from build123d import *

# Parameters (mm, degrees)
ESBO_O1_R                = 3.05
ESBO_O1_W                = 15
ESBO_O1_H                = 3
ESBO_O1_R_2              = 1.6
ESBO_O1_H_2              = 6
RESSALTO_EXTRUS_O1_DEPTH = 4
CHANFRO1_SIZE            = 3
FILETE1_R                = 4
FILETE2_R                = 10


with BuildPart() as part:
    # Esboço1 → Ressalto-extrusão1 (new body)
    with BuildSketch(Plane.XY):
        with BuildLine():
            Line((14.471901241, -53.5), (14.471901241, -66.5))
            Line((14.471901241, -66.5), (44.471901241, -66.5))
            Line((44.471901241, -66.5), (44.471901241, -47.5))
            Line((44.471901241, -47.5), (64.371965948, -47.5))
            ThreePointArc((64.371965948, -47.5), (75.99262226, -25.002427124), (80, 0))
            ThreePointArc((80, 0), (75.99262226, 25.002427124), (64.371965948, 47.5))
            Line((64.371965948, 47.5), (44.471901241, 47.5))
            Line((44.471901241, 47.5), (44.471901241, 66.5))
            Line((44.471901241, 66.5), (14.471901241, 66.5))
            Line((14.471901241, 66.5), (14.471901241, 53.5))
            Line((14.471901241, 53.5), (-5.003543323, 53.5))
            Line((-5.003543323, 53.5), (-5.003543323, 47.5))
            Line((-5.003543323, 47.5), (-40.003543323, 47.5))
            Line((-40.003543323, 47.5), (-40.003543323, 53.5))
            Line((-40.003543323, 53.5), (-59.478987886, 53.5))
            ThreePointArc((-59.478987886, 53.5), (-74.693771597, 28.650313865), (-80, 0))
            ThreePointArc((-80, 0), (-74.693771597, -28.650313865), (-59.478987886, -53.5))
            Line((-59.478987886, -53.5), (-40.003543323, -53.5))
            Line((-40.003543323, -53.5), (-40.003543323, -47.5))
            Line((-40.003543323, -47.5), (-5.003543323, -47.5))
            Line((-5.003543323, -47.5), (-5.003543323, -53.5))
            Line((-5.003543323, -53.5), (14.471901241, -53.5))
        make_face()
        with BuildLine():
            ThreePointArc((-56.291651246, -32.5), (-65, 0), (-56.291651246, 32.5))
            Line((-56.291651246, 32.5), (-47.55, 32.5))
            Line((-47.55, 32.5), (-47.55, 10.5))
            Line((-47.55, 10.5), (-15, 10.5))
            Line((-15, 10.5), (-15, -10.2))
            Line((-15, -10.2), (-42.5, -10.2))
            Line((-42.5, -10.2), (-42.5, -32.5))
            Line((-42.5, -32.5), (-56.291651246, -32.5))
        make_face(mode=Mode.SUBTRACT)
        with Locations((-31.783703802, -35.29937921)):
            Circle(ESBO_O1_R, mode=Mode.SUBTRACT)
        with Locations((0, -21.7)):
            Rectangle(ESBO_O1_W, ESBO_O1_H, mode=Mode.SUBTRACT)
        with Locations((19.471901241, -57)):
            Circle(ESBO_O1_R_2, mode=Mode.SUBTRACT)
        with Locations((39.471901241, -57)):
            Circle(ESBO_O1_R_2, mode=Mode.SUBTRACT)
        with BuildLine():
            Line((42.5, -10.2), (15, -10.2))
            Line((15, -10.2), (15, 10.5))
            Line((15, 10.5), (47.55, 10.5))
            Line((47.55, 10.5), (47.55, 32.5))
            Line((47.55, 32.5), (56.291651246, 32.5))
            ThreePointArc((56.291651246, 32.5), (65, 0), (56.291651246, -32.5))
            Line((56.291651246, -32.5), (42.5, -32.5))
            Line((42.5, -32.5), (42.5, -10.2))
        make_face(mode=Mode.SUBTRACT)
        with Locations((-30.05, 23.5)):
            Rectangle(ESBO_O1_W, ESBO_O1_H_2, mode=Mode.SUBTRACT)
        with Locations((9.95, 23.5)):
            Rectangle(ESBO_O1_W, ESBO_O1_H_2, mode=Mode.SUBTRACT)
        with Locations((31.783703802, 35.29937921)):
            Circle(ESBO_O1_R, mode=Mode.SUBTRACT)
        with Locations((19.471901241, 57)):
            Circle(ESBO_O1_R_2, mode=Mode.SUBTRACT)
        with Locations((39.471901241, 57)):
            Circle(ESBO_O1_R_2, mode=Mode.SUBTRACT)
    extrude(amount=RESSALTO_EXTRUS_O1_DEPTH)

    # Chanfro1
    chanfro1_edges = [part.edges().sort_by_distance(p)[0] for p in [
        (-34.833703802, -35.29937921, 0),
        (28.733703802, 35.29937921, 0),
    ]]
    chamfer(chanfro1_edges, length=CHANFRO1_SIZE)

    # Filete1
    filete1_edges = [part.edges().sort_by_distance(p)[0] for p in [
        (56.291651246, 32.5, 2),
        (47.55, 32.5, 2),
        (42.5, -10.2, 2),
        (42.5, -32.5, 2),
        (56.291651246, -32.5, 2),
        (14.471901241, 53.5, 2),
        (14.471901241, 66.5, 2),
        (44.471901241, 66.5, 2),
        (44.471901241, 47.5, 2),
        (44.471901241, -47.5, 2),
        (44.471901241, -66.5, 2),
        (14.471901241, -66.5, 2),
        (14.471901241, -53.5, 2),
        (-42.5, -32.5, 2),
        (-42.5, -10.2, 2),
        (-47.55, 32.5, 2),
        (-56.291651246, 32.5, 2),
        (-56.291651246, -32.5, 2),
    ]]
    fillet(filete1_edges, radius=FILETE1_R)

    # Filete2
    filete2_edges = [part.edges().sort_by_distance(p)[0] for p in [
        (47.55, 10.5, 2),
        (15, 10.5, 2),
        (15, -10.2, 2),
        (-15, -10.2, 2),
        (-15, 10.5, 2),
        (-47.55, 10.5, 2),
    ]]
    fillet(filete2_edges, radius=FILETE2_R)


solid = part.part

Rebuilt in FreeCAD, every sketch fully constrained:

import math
import FreeCAD as App
import Part
import Sketcher

V = App.Vector


def edges_at(feature, points):
    """Names of the edges that pass closest to the given points."""
    edges = feature.Shape.Edges
    near = lambda p: min(range(len(edges)), key=lambda i: edges[i].distToShape(Part.Vertex(*p))[0])
    return sorted({f"Edge{near(p) + 1}" for p in points})

doc = App.newDocument("Part")
body = doc.addObject("PartDesign::Body", "Body")

# Sketch on XY plane
sketch1 = body.newObject("Sketcher::SketchObject", "Sketch")
sketch1.AttachmentSupport = (doc.getObject("XY_Plane"), [""])
sketch1.MapMode = "FlatFace"
sketch1.addGeometry([
    Part.LineSegment(V(14.5, -53.5, 0), V(14.5, -66.5, 0)),  # 0
    Part.LineSegment(V(14.5, -66.5, 0), V(44.5, -66.5, 0)),  # 1
    Part.LineSegment(V(44.5, -66.5, 0), V(44.5, -47.5, 0)),  # 2
    Part.LineSegment(V(44.5, -47.5, 0), V(64.4, -47.5, 0)),  # 3
    Part.ArcOfCircle(Part.Circle(V(0, 0, 0), V(0, 0, 1), 80), math.radians(-36), math.radians(0)),  # 4
    Part.ArcOfCircle(Part.Circle(V(0, 0, 0), V(0, 0, 1), 80), math.radians(0), math.radians(36)),  # 5
    Part.LineSegment(V(64.4, 47.5, 0), V(44.5, 47.5, 0)),  # 6
    Part.LineSegment(V(44.5, 47.5, 0), V(44.5, 66.5, 0)),  # 7
    Part.LineSegment(V(44.5, 66.5, 0), V(14.5, 66.5, 0)),  # 8
    Part.LineSegment(V(14.5, 66.5, 0), V(14.5, 53.5, 0)),  # 9
    Part.LineSegment(V(14.5, 53.5, 0), V(-5, 53.5, 0)),  # 10
    Part.LineSegment(V(-5, 53.5, 0), V(-5, 47.5, 0)),  # 11
    Part.LineSegment(V(-5, 47.5, 0), V(-40, 47.5, 0)),  # 12
    Part.LineSegment(V(-40, 47.5, 0), V(-40, 53.5, 0)),  # 13
    Part.LineSegment(V(-40, 53.5, 0), V(-59.5, 53.5, 0)),  # 14
    Part.ArcOfCircle(Part.Circle(V(0, 0, 0), V(0, 0, 1), 80), math.radians(138), math.radians(180)),  # 15
    Part.ArcOfCircle(Part.Circle(V(0, 0, 0), V(0, 0, 1), 80), math.radians(-180), math.radians(-138)),  # 16
    Part.LineSegment(V(-59.5, -53.5, 0), V(-40, -53.5, 0)),  # 17
    Part.LineSegment(V(-40, -53.5, 0), V(-40, -47.5, 0)),  # 18
    Part.LineSegment(V(-40, -47.5, 0), V(-5, -47.5, 0)),  # 19
    Part.LineSegment(V(-5, -47.5, 0), V(-5, -53.5, 0)),  # 20
    Part.LineSegment(V(-5, -53.5, 0), V(14.5, -53.5, 0)),  # 21
    Part.Circle(V(-31.8, -35.3, 0), V(0, 0, 1), 3),  # 22
    Part.Circle(V(19.5, -57, 0), V(0, 0, 1), 1.6),  # 23
    Part.Circle(V(39.5, -57, 0), V(0, 0, 1), 1.6),  # 24
    Part.LineSegment(V(7.5, -23.2, 0), V(-7.5, -23.2, 0)),  # 25
    Part.LineSegment(V(-7.5, -23.2, 0), V(-7.5, -20.2, 0)),  # 26
    Part.LineSegment(V(-7.5, -20.2, 0), V(7.5, -20.2, 0)),  # 27
    Part.LineSegment(V(7.5, -20.2, 0), V(7.5, -23.2, 0)),  # 28
    Part.LineSegment(V(42.5, -32.5, 0), V(42.5, -10.2, 0)),  # 29
    Part.LineSegment(V(42.5, -10.2, 0), V(15, -10.2, 0)),  # 30
    Part.LineSegment(V(15, -10.2, 0), V(15, 10.5, 0)),  # 31
    Part.LineSegment(V(15, 10.5, 0), V(47.5, 10.5, 0)),  # 32
    Part.LineSegment(V(47.5, 10.5, 0), V(47.5, 32.5, 0)),  # 33
    Part.LineSegment(V(47.5, 32.5, 0), V(56.3, 32.5, 0)),  # 34
    Part.ArcOfCircle(Part.Circle(V(0, 0, 0), V(0, 0, 1), 65), math.radians(-30), math.radians(30)),  # 35
    Part.LineSegment(V(56.3, -32.5, 0), V(42.5, -32.5, 0)),  # 36
    Part.LineSegment(V(-42.5, -32.5, 0), V(-56.3, -32.5, 0)),  # 37
    Part.ArcOfCircle(Part.Circle(V(0, 0, 0), V(0, 0, 1), 65), math.radians(150), math.radians(210)),  # 38
    Part.LineSegment(V(-56.3, 32.5, 0), V(-47.5, 32.5, 0)),  # 39
    Part.LineSegment(V(-47.5, 32.5, 0), V(-47.5, 10.5, 0)),  # 40
    Part.LineSegment(V(-47.5, 10.5, 0), V(-15, 10.5, 0)),  # 41
    Part.LineSegment(V(-15, 10.5, 0), V(-15, -10.2, 0)),  # 42
    Part.LineSegment(V(-15, -10.2, 0), V(-42.5, -10.2, 0)),  # 43
    Part.LineSegment(V(-42.5, -10.2, 0), V(-42.5, -32.5, 0)),  # 44
    Part.LineSegment(V(-22.6, 20.5, 0), V(-37.5, 20.5, 0)),  # 45
    Part.LineSegment(V(-37.5, 20.5, 0), V(-37.5, 26.5, 0)),  # 46
    Part.LineSegment(V(-37.5, 26.5, 0), V(-22.6, 26.5, 0)),  # 47
    Part.LineSegment(V(-22.6, 26.5, 0), V(-22.6, 20.5, 0)),  # 48
    Part.LineSegment(V(17.4, 20.5, 0), V(2.5, 20.5, 0)),  # 49
    Part.LineSegment(V(2.5, 20.5, 0), V(2.5, 26.5, 0)),  # 50
    Part.LineSegment(V(2.5, 26.5, 0), V(17.4, 26.5, 0)),  # 51
    Part.LineSegment(V(17.4, 26.5, 0), V(17.4, 20.5, 0)),  # 52
    Part.Circle(V(31.8, 35.3, 0), V(0, 0, 1), 3),  # 53
    Part.Circle(V(19.5, 57, 0), V(0, 0, 1), 1.6),  # 54
    Part.Circle(V(39.5, 57, 0), V(0, 0, 1), 1.6),  # 55
], False)
sketch1.addConstraint([
    Sketcher.Constraint("Coincident", 0, 2, 1, 1),
    Sketcher.Constraint("Coincident", 1, 2, 2, 1),
    Sketcher.Constraint("Coincident", 2, 2, 3, 1),
    Sketcher.Constraint("Coincident", 3, 2, 4, 1),
    Sketcher.Constraint("Tangent", 4, 2, 5, 1),
    Sketcher.Constraint("Coincident", 5, 2, 6, 1),
    Sketcher.Constraint("Coincident", 6, 2, 7, 1),
    Sketcher.Constraint("Coincident", 7, 2, 8, 1),
    Sketcher.Constraint("Coincident", 8, 2, 9, 1),
    Sketcher.Constraint("Coincident", 9, 2, 10, 1),
    Sketcher.Constraint("Coincident", 10, 2, 11, 1),
    Sketcher.Constraint("Coincident", 11, 2, 12, 1),
    Sketcher.Constraint("Coincident", 12, 2, 13, 1),
    Sketcher.Constraint("Coincident", 13, 2, 14, 1),
    Sketcher.Constraint("Coincident", 14, 2, 15, 1),
    Sketcher.Constraint("Tangent", 15, 2, 16, 1),
    Sketcher.Constraint("Coincident", 16, 2, 17, 1),
    Sketcher.Constraint("Coincident", 17, 2, 18, 1),
    Sketcher.Constraint("Coincident", 18, 2, 19, 1),
    Sketcher.Constraint("Coincident", 19, 2, 20, 1),
    Sketcher.Constraint("Coincident", 20, 2, 21, 1),
    Sketcher.Constraint("Coincident", 21, 2, 0, 1),
    Sketcher.Constraint("Coincident", 25, 2, 26, 1),
    Sketcher.Constraint("Coincident", 26, 2, 27, 1),
    Sketcher.Constraint("Coincident", 27, 2, 28, 1),
    Sketcher.Constraint("Coincident", 28, 2, 25, 1),
    Sketcher.Constraint("Coincident", 29, 2, 30, 1),
    Sketcher.Constraint("Coincident", 30, 2, 31, 1),
    Sketcher.Constraint("Coincident", 31, 2, 32, 1),
    Sketcher.Constraint("Coincident", 32, 2, 33, 1),
    Sketcher.Constraint("Coincident", 33, 2, 34, 1),
    Sketcher.Constraint("Coincident", 34, 2, 35, 2),
    Sketcher.Constraint("Coincident", 35, 1, 36, 1),
    Sketcher.Constraint("Coincident", 36, 2, 29, 1),
    Sketcher.Constraint("Coincident", 37, 2, 38, 2),
    Sketcher.Constraint("Coincident", 38, 1, 39, 1),
    Sketcher.Constraint("Coincident", 39, 2, 40, 1),
    Sketcher.Constraint("Coincident", 40, 2, 41, 1),
    Sketcher.Constraint("Coincident", 41, 2, 42, 1),
    Sketcher.Constraint("Coincident", 42, 2, 43, 1),
    Sketcher.Constraint("Coincident", 43, 2, 44, 1),
    Sketcher.Constraint("Coincident", 44, 2, 37, 1),
    Sketcher.Constraint("Coincident", 45, 2, 46, 1),
    Sketcher.Constraint("Coincident", 46, 2, 47, 1),
    Sketcher.Constraint("Coincident", 47, 2, 48, 1),
    Sketcher.Constraint("Coincident", 48, 2, 45, 1),
    Sketcher.Constraint("Coincident", 49, 2, 50, 1),
    Sketcher.Constraint("Coincident", 50, 2, 51, 1),
    Sketcher.Constraint("Coincident", 51, 2, 52, 1),
    Sketcher.Constraint("Coincident", 52, 2, 49, 1),
    Sketcher.Constraint("Vertical", 0),
    Sketcher.Constraint("Horizontal", 1),
    Sketcher.Constraint("Vertical", 2),
    Sketcher.Constraint("Horizontal", 3),
    Sketcher.Constraint("Horizontal", 6),
    Sketcher.Constraint("Vertical", 7),
    Sketcher.Constraint("Horizontal", 8),
    Sketcher.Constraint("Vertical", 9),
    Sketcher.Constraint("Horizontal", 10),
    Sketcher.Constraint("Vertical", 11),
    Sketcher.Constraint("Horizontal", 12),
    Sketcher.Constraint("Vertical", 13),
    Sketcher.Constraint("Horizontal", 14),
    Sketcher.Constraint("Horizontal", 17),
    Sketcher.Constraint("Vertical", 18),
    Sketcher.Constraint("Horizontal", 19),
    Sketcher.Constraint("Vertical", 20),
    Sketcher.Constraint("Horizontal", 21),
    Sketcher.Constraint("Horizontal", 25),
    Sketcher.Constraint("Vertical", 26),
    Sketcher.Constraint("Horizontal", 27),
    Sketcher.Constraint("Vertical", 28),
    Sketcher.Constraint("Vertical", 29),
    Sketcher.Constraint("Horizontal", 30),
    Sketcher.Constraint("Vertical", 31),
    Sketcher.Constraint("Horizontal", 32),
    Sketcher.Constraint("Vertical", 33),
    Sketcher.Constraint("Horizontal", 34),
    Sketcher.Constraint("Horizontal", 36),
    Sketcher.Constraint("Horizontal", 37),
    Sketcher.Constraint("Horizontal", 39),
    Sketcher.Constraint("Vertical", 40),
    Sketcher.Constraint("Horizontal", 41),
    Sketcher.Constraint("Vertical", 42),
    Sketcher.Constraint("Horizontal", 43),
    Sketcher.Constraint("Vertical", 44),
    Sketcher.Constraint("Horizontal", 45),
    Sketcher.Constraint("Vertical", 46),
    Sketcher.Constraint("Horizontal", 47),
    Sketcher.Constraint("Vertical", 48),
    Sketcher.Constraint("Horizontal", 49),
    Sketcher.Constraint("Vertical", 50),
    Sketcher.Constraint("Horizontal", 51),
    Sketcher.Constraint("Vertical", 52),
    Sketcher.Constraint("Coincident", 4, 3, -1, 1),
    Sketcher.Constraint("Coincident", 15, 3, -1, 1),
    Sketcher.Constraint("Coincident", 35, 3, -1, 1),
    Sketcher.Constraint("Coincident", 38, 3, -1, 1),
    Sketcher.Constraint("Equal", 4, 5),
    Sketcher.Constraint("Equal", 5, 15),
    Sketcher.Constraint("Equal", 15, 16),
    Sketcher.Constraint("Equal", 23, 24),
    Sketcher.Constraint("Equal", 35, 38),
    Sketcher.Constraint("Equal", 22, 53),
    Sketcher.Constraint("Equal", 24, 54),
    Sketcher.Constraint("Equal", 54, 55),
    Sketcher.Constraint("Symmetric", 22, 3, 53, 3, -1, 1),
    Sketcher.Constraint("Symmetric", 33, 2, 39, 2, -2),
    Sketcher.Constraint("Symmetric", 31, 2, 41, 2, -2),
    Sketcher.Constraint("Symmetric", 29, 2, 43, 2, -2),
    Sketcher.Constraint("Symmetric", 23, 3, 54, 3, -1),
    Sketcher.Constraint("Symmetric", 24, 3, 55, 3, -1),
    Sketcher.Constraint("Symmetric", 2, 2, 6, 2, -1),
    Sketcher.Constraint("Symmetric", 0, 2, 8, 2, -1),
    Sketcher.Constraint("Symmetric", 13, 2, 17, 2, -1),
    Sketcher.Constraint("Symmetric", 11, 2, 19, 2, -1),
    Sketcher.Constraint("PointOnObject", 4, 2, -1),
    Sketcher.Constraint("PointOnObject", 15, 2, -1),
    Sketcher.Constraint("Horizontal", 23, 3, 24, 3),
    Sketcher.Constraint("Horizontal", 6, 2, 11, 2),
    Sketcher.Constraint("Horizontal", 10, 2, 13, 2),
    Sketcher.Constraint("Horizontal", 17, 2, 20, 2),
    Sketcher.Constraint("Horizontal", 36, 2, 37, 2),
    Sketcher.Constraint("Horizontal", 48, 2, 49, 2),
    Sketcher.Constraint("Horizontal", 47, 2, 50, 2),
    Sketcher.Constraint("Vertical", 34, 2, 35, 1),
    Sketcher.Constraint("Equal", 10, 14),
    Sketcher.Constraint("Equal", 27, 45),
    Sketcher.Constraint("Equal", 47, 49),
    Sketcher.Constraint("Equal", 20, 46),
    Sketcher.Constraint("Radius", 4, 80.0),
    Sketcher.Constraint("Radius", 35, 65.0),
    Sketcher.Constraint("Diameter", 22, 6.1),
    Sketcher.Constraint("Diameter", 23, 3.2),
    Sketcher.Constraint("DistanceX", 1, 1, 1, 2, 30.0),
    Sketcher.Constraint("DistanceX", 12, 2, 12, 1, 35.0),
    Sketcher.Constraint("DistanceX", 25, 2, 25, 1, 15.0),
    Sketcher.Constraint("DistanceY", 0, 2, 0, 1, 13.0),
    Sketcher.Constraint("DistanceY", 2, 1, 2, 2, 19.0),
    Sketcher.Constraint("DistanceY", 26, 1, 26, 2, 3.0),
    Sketcher.Constraint("DistanceY", 33, 1, 33, 2, 22.0),
    Sketcher.Constraint("DistanceX", 30, 2, 30, 1, 27.5),
    Sketcher.Constraint("DistanceY", 29, 1, 29, 2, 22.3),
    Sketcher.Constraint("DistanceY", 31, 1, 31, 2, 20.7),
    Sketcher.Constraint("DistanceY", 23, 3, -1, 1, 57.0),
    Sketcher.Constraint("DistanceX", -1, 1, 30, 2, 15.0),
    Sketcher.Constraint("DistanceX", 32, 1, 32, 2, 32.55),
    Sketcher.Constraint("DistanceY", 0, 2, -1, 1, 66.5),
    Sketcher.Constraint("DistanceX", 25, 2, -1, 1, 7.5),
    Sketcher.Constraint("DistanceY", 25, 2, -1, 1, 23.2),
    Sketcher.Constraint("DistanceY", -1, 1, 45, 2, 20.5),
    Sketcher.Constraint("DistanceX", 45, 2, -1, 1, 37.55),
    Sketcher.Constraint("DistanceX", -1, 1, 49, 2, 2.45),
    Sketcher.Constraint("DistanceX", -1, 1, 23, 3, 19.471901),
    Sketcher.Constraint("DistanceX", -1, 1, 24, 3, 39.471901),
    Sketcher.Constraint("DistanceX", -1, 1, 0, 2, 14.471901),
    Sketcher.Constraint("DistanceY", 22, 3, -1, 1, 35.299379),
    Sketcher.Constraint("DistanceX", 22, 3, -1, 1, 31.783704),
])
pad1 = body.newObject("PartDesign::Pad", "Pad")
pad1.Profile = sketch1
pad1.Length = 4
doc.recompute()

chamfer = body.newObject("PartDesign::Chamfer", "Chamfer")
chamfer.Base = (pad1, edges_at(pad1, [(-34.834, -35.299, 0), (28.734, 35.299, 0)]))
chamfer.Size = 3
doc.recompute()

fillet = body.newObject("PartDesign::Fillet", "Fillet")
fillet.Base = (chamfer, edges_at(chamfer, [
    (56.292, 32.5, 2),
    (47.55, 32.5, 2),
    (42.5, -10.2, 2),
    (42.5, -32.5, 2),
    (56.292, -32.5, 2),
    (14.472, 53.5, 2),
    (14.472, 66.5, 2),
    (44.472, 66.5, 2),
    (44.472, 47.5, 2),
    (44.472, -47.5, 2),
    (44.472, -66.5, 2),
    (14.472, -66.5, 2),
    (14.472, -53.5, 2),
    (-42.5, -32.5, 2),
    (-42.5, -10.2, 2),
    (-47.55, 32.5, 2),
    (-56.292, 32.5, 2),
    (-56.292, -32.5, 2),
]))
fillet.Radius = 4
doc.recompute()

fillet2 = body.newObject("PartDesign::Fillet", "Fillet001")
fillet2.Base = (fillet, edges_at(fillet, [
    (47.55, 10.5, 2),
    (15, 10.5, 2),
    (15, -10.2, 2),
    (-15, -10.2, 2),
    (-15, 10.5, 2),
    (-47.55, 10.5, 2),
]))
fillet2.Radius = 10

doc.recompute()
